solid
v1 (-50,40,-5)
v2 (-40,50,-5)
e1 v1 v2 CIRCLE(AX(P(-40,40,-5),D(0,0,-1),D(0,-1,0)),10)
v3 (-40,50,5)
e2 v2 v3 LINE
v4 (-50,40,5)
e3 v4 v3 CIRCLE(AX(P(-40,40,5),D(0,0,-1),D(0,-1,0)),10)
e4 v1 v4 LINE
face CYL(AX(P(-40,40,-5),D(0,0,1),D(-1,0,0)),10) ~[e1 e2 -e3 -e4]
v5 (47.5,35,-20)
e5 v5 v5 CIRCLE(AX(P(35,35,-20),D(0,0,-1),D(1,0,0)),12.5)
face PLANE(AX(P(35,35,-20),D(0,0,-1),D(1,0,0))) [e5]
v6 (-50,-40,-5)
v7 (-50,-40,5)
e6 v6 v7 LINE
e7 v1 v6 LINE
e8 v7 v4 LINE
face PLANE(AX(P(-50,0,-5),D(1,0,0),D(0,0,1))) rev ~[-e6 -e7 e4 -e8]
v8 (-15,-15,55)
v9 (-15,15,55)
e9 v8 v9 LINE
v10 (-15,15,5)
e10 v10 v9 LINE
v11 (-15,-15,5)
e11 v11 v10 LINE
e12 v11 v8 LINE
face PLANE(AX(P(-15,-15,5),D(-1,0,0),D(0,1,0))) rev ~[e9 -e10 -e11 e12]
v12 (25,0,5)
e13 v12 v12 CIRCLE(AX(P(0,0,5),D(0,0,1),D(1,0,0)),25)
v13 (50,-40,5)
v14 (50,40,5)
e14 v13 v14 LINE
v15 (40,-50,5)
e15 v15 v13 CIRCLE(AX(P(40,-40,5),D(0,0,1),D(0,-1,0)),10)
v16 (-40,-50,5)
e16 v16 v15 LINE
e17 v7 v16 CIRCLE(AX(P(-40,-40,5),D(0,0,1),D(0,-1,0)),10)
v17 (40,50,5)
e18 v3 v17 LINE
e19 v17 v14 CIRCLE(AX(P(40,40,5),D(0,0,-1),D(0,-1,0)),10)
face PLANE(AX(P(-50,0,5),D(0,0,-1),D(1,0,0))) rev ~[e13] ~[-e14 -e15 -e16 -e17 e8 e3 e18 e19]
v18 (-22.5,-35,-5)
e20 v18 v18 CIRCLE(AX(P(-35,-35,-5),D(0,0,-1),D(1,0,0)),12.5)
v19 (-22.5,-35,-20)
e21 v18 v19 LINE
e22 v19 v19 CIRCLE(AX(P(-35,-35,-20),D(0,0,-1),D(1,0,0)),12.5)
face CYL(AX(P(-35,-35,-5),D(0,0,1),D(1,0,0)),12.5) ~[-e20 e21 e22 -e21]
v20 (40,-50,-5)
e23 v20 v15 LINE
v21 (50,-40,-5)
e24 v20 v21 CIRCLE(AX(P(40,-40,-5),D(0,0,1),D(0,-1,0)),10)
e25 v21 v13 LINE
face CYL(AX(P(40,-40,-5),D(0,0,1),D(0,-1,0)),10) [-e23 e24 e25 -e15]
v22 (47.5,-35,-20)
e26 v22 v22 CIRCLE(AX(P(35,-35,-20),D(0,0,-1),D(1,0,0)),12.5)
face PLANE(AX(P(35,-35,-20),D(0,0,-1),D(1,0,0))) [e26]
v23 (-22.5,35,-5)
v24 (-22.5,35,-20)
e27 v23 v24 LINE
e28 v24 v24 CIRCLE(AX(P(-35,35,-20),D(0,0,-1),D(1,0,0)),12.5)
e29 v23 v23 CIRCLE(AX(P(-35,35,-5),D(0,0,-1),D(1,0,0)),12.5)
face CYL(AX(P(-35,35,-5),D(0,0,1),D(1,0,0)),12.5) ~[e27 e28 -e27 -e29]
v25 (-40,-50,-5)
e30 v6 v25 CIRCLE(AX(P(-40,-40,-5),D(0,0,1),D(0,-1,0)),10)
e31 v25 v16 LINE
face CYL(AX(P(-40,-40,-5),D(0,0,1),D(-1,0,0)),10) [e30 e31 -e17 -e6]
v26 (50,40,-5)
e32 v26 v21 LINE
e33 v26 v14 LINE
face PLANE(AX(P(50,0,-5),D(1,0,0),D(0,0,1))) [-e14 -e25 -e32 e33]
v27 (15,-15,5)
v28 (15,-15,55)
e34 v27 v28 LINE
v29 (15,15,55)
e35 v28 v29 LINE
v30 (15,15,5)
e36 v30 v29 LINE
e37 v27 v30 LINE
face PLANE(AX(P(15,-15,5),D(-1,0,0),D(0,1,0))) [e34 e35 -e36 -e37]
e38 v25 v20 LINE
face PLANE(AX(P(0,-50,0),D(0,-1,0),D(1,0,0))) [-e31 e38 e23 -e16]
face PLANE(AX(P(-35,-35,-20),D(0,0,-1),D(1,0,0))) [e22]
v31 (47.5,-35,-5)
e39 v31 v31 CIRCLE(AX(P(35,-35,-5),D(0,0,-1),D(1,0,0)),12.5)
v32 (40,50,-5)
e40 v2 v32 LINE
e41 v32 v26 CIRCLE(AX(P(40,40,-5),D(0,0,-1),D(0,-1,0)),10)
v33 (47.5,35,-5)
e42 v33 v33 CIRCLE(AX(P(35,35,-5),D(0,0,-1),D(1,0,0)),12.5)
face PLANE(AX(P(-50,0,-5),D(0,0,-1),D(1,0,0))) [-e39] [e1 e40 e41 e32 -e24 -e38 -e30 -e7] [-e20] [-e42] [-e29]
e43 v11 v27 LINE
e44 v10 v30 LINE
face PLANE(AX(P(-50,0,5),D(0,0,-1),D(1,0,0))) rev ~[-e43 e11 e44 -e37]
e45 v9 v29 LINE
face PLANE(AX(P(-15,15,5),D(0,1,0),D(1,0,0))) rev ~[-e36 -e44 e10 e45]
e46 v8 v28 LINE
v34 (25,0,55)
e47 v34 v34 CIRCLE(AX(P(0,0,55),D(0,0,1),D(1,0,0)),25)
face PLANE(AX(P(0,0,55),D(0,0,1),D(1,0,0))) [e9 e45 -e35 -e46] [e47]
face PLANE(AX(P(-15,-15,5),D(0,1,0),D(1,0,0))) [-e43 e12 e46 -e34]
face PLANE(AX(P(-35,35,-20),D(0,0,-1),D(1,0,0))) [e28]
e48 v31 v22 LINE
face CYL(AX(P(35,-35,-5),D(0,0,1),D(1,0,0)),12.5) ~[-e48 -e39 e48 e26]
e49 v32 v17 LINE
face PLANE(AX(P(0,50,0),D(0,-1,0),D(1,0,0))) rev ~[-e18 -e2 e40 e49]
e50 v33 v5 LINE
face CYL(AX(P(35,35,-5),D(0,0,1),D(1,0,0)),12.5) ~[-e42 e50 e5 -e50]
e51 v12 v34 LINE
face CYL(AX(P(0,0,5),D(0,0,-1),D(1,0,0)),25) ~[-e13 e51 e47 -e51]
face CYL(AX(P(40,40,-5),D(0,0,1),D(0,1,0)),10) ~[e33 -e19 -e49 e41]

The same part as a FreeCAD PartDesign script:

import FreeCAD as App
import Part
import Sketcher


def edges_at(feature, points):
    """Names of the edges that pass closest to the given points."""
    edges = feature.Shape.Edges
    near = lambda p: min(range(len(edges)), key=lambda i: edges[i].distToShape(Part.Vertex(*p))[0])
    return sorted({f"Edge{near(p) + 1}" for p in points})

doc = App.newDocument("Part")
body = doc.addObject("PartDesign::Body", "Body")

sketch1 = body.newObject("Sketcher::SketchObject", "Sketch")
sketch1.AttachmentSupport = (doc.getObject("XZ_Plane"), [""])
sketch1.MapMode = "FlatFace"
sketch1.addGeometry(Part.LineSegment(App.Vector(-50, 5, 0), App.Vector(-50, -5, 0)), False)
sketch1.addGeometry(Part.LineSegment(App.Vector(-50, -5, 0), App.Vector(50, -5, 0)), False)
sketch1.addGeometry(Part.LineSegment(App.Vector(50, -5, 0), App.Vector(50, 5, 0)), False)
sketch1.addGeometry(Part.LineSegment(App.Vector(50, 5, 0), App.Vector(-50, 5, 0)), False)
sketch1.addConstraint(Sketcher.Constraint("Coincident", 0, 2, 1, 1))
sketch1.addConstraint(Sketcher.Constraint("Coincident", 1, 2, 2, 1))
sketch1.addConstraint(Sketcher.Constraint("Coincident", 2, 2, 3, 1))
sketch1.addConstraint(Sketcher.Constraint("Coincident", 3, 2, 0, 1))
sketch1.addConstraint(Sketcher.Constraint("Vertical", 0))
sketch1.addConstraint(Sketcher.Constraint("Horizontal", 1))
sketch1.addConstraint(Sketcher.Constraint("Vertical", 2))
sketch1.addConstraint(Sketcher.Constraint("Horizontal", 3))
sketch1.addConstraint(Sketcher.Constraint("Symmetric", 0, 2, 2, 2, -1, 1))
sketch1.addConstraint(Sketcher.Constraint("DistanceX", 1, 1, 1, 2, 100.0))
sketch1.addConstraint(Sketcher.Constraint("DistanceY", 0, 2, 0, 1, 10.0))
pad1 = body.newObject("PartDesign::Pad", "Pad")
pad1.Profile = sketch1
pad1.Length = 100
pad1.Midplane = True

sketch2 = body.newObject("Sketcher::SketchObject", "Sketch001")
sketch2.AttachmentSupport = (doc.getObject("XY_Plane"), [""])
sketch2.MapMode = "FlatFace"
sketch2.AttachmentOffset = App.Placement(App.Vector(0, 0, -5), App.Rotation())
sketch2.addGeometry(Part.Circle(App.Vector(35, -35, 0), App.Vector(0, 0, 1), 12), False)
sketch2.addGeometry(Part.Circle(App.Vector(35, 35, 0), App.Vector(0, 0, 1), 12), False)
sketch2.addGeometry(Part.Circle(App.Vector(-35, 35, 0), App.Vector(0, 0, 1), 12), False)
sketch2.addGeometry(Part.Circle(App.Vector(-35, -35, 0), App.Vector(0, 0, 1), 12), False)
sketch2.addConstraint(Sketcher.Constraint("Equal", 0, 1))
sketch2.addConstraint(Sketcher.Constraint("Equal", 1, 2))
sketch2.addConstraint(Sketcher.Constraint("Equal", 2, 3))
sketch2.addConstraint(Sketcher.Constraint("Symmetric", 0, 3, 2, 3, -1, 1))
sketch2.addConstraint(Sketcher.Constraint("Symmetric", 1, 3, 3, 3, -1, 1))
sketch2.addConstraint(Sketcher.Constraint("Symmetric", 1, 3, 2, 3, -2))
sketch2.addConstraint(Sketcher.Constraint("Diameter", 0, 25.0))
sketch2.addConstraint(Sketcher.Constraint("DistanceX", -1, 1, 0, 3, 35.0))
sketch2.addConstraint(Sketcher.Constraint("DistanceY", 0, 3, -1, 1, 35.0))
pad2 = body.newObject("PartDesign::Pad", "Pad001")
pad2.Profile = sketch2
pad2.Length = 15
pad2.Reversed = True
doc.recompute()

fillet = body.newObject("PartDesign::Fillet", "Fillet")
fillet.Base = (pad2, edges_at(pad2, [
    (-50, -50, 0),
    (50, -50, 0),
    (50, 50, 0),
    (-50, 50, 0),
]))
fillet.Radius = 10

sketch3 = body.newObject("Sketcher::SketchObject", "Sketch002")
sketch3.AttachmentSupport = (doc.getObject("XY_Plane"), [""])
sketch3.MapMode = "FlatFace"
sketch3.AttachmentOffset = App.Placement(App.Vector(0, 0, 5), App.Rotation())
sketch3.addGeometry(Part.Circle(App.Vector(0, 0, 0), App.Vector(0, 0, 1), 25), False)
sketch3.addGeometry(Part.LineSegment(App.Vector(15, -15, 0), App.Vector(-15, -15, 0)), False)
sketch3.addGeometry(Part.LineSegment(App.Vector(-15, -15, 0), App.Vector(-15, 15, 0)), False)
sketch3.addGeometry(Part.LineSegment(App.Vector(-15, 15, 0), App.Vector(15, 15, 0)), False)
sketch3.addGeometry(Part.LineSegment(App.Vector(15, 15, 0), App.Vector(15, -15, 0)), False)
sketch3.addConstraint(Sketcher.Constraint("Coincident", 1, 2, 2, 1))
sketch3.addConstraint(Sketcher.Constraint("Coincident", 2, 2, 3, 1))
sketch3.addConstraint(Sketcher.Constraint("Coincident", 3, 2, 4, 1))
sketch3.addConstraint(Sketcher.Constraint("Coincident", 4, 2, 1, 1))
sketch3.addConstraint(Sketcher.Constraint("Horizontal", 1))
sketch3.addConstraint(Sketcher.Constraint("Vertical", 2))
sketch3.addConstraint(Sketcher.Constraint("Horizontal", 3))
sketch3.addConstraint(Sketcher.Constraint("Vertical", 4))
sketch3.addConstraint(Sketcher.Constraint("Coincident", 0, 3, -1, 1))
sketch3.addConstraint(Sketcher.Constraint("Symmetric", 1, 2, 3, 2, -1, 1))
sketch3.addConstraint(Sketcher.Constraint("Equal", 3, 2))
sketch3.addConstraint(Sketcher.Constraint("Diameter", 0, 50.0))
sketch3.addConstraint(Sketcher.Constraint("DistanceX", 1, 2, 1, 1, 30.0))
pad3 = body.newObject("PartDesign::Pad", "Pad002")
pad3.Profile = sketch3
pad3.Length = 50

doc.recompute()
